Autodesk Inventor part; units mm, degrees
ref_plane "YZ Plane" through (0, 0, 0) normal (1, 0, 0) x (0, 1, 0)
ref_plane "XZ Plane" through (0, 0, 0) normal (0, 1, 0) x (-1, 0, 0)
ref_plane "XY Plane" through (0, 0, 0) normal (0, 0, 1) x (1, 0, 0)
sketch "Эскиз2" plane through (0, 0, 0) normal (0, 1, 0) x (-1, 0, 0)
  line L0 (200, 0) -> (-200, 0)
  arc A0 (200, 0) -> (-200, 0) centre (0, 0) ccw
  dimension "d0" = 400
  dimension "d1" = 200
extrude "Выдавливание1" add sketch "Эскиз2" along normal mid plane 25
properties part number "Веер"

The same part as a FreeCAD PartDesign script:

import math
import FreeCAD as App
import Part
import Sketcher
from FreeCAD import Vector

doc = App.newDocument("Part")
body = doc.addObject("PartDesign::Body", "Body")

# Sketch on XZ plane
sketch1 = body.newObject("Sketcher::SketchObject", "Sketch")
sketch1.AttachmentSupport = (doc.getObject("XZ_Plane"), [""])
sketch1.MapMode = "FlatFace"
sketch1.addGeometry(Part.LineSegment(Vector(200, 0, 0), Vector(-200, 0, 0)), False)
sketch1.addGeometry(Part.ArcOfCircle(Part.Circle(Vector(0, 0, 0), Vector(0, 0, 1), 200), math.radians(0), math.radians(180)), False)
sketch1.addConstraint(Sketcher.Constraint("Coincident", 0, 1, 1, 1))
sketch1.addConstraint(Sketcher.Constraint("Coincident", 1, 2, 0, 2))
sketch1.addConstraint(Sketcher.Constraint("Horizontal", 0))
sketch1.addConstraint(Sketcher.Constraint("Coincident", 1, 3, -1, 1))
sketch1.addConstraint(Sketcher.Constraint("PointOnObject", 0, 1, -1))
sketch1.addConstraint(Sketcher.Constraint("Radius", 1, 200.0))
pad1 = body.newObject("PartDesign::Pad", "Pad")
pad1.Profile = sketch1
pad1.Length = 25
pad1.Midplane = True

doc.recompute()
